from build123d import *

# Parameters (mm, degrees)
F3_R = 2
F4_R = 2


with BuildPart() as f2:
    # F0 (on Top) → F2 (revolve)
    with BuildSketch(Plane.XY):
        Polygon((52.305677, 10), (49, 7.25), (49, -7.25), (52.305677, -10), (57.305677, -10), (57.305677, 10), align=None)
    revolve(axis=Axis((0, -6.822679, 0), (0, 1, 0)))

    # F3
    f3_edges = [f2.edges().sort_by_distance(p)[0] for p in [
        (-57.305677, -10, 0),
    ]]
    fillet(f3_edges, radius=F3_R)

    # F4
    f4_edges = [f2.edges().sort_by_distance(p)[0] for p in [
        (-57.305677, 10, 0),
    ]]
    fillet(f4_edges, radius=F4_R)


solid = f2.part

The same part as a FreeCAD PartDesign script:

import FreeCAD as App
import Part
import Sketcher
from FreeCAD import Vector
Q = App.Units.Quantity


def edges_at(feature, points):
    """Names of the edges that pass closest to the given points."""
    edges = feature.Shape.Edges
    near = lambda p: min(range(len(edges)), key=lambda i: edges[i].distToShape(Part.Vertex(*p))[0])
    return sorted({f"Edge{near(p) + 1}" for p in points})

doc = App.newDocument("Part")
body = doc.addObject("PartDesign::Body", "Body")

sketch1 = doc.addObject("Sketcher::SketchObject", "Sketch")
body.addObject(sketch1)
sketch1.AttachmentSupport = (doc.XY_Plane, [""])
sketch1.MapMode = "FlatFace"
sketch1.addGeometry([
    Part.LineSegment(Vector(52.3, 10, 0), Vector(49, 7.2, 0)),
    Part.LineSegment(Vector(49, 7.2, 0), Vector(49, -7.2, 0)),
    Part.LineSegment(Vector(49, -7.2, 0), Vector(52.3, -10, 0)),
    Part.LineSegment(Vector(52.3, -10, 0), Vector(57.3, -10, 0)),
    Part.LineSegment(Vector(57.3, -10, 0), Vector(57.3, 10, 0)),
    Part.LineSegment(Vector(57.3, 10, 0), Vector(52.3, 10, 0)),
], False)
sketch1.addConstraint([
    Sketcher.Constraint("Coincident", 0, 2, 1, 1),
    Sketcher.Constraint("Coincident", 1, 2, 2, 1),
    Sketcher.Constraint("Coincident", 2, 2, 3, 1),
    Sketcher.Constraint("Coincident", 3, 2, 4, 1),
    Sketcher.Constraint("Coincident", 4, 2, 5, 1),
    Sketcher.Constraint("Coincident", 5, 2, 0, 1),
    Sketcher.Constraint("Vertical", 1),
    Sketcher.Constraint("Horizontal", 3),
    Sketcher.Constraint("Vertical", 4),
    Sketcher.Constraint("Horizontal", 5),
    Sketcher.Constraint("Symmetric", 2, 2, 5, 2, -1),
    Sketcher.Constraint("Equal", 0, 2),
    Sketcher.Constraint("DistanceX", 3, 1, 3, 2, Q("5 mm")),
    Sketcher.Constraint("DistanceY", 4, 1, 4, 2, Q("20 mm")),
    Sketcher.Constraint("DistanceY", 1, 2, 1, 1, Q("14.5 mm")),
    Sketcher.Constraint("DistanceX", -1, 1, 0, 2, Q("49 mm")),
    Sketcher.Constraint("Distance", 0, Q("4.3 mm")),
])
revolution = doc.addObject("PartDesign::Revolution", "Revolution")
body.addObject(revolution)
revolution.Profile = sketch1
revolution.ReferenceAxis = (sketch1, ["V_Axis"])
revolution.Angle = 360
doc.recompute()

fillet = doc.addObject("PartDesign::Fillet", "Fillet")
body.addObject(fillet)
fillet.Base = (revolution, edges_at(revolution, [(-57.306, -10, 0)]))
fillet.Radius = 2
doc.recompute()

fillet2 = doc.addObject("PartDesign::Fillet", "Fillet001")
body.addObject(fillet2)
fillet2.Base = (fillet, edges_at(fillet, [(-57.306, 10, 0)]))
fillet2.Radius = 2

doc.recompute()
